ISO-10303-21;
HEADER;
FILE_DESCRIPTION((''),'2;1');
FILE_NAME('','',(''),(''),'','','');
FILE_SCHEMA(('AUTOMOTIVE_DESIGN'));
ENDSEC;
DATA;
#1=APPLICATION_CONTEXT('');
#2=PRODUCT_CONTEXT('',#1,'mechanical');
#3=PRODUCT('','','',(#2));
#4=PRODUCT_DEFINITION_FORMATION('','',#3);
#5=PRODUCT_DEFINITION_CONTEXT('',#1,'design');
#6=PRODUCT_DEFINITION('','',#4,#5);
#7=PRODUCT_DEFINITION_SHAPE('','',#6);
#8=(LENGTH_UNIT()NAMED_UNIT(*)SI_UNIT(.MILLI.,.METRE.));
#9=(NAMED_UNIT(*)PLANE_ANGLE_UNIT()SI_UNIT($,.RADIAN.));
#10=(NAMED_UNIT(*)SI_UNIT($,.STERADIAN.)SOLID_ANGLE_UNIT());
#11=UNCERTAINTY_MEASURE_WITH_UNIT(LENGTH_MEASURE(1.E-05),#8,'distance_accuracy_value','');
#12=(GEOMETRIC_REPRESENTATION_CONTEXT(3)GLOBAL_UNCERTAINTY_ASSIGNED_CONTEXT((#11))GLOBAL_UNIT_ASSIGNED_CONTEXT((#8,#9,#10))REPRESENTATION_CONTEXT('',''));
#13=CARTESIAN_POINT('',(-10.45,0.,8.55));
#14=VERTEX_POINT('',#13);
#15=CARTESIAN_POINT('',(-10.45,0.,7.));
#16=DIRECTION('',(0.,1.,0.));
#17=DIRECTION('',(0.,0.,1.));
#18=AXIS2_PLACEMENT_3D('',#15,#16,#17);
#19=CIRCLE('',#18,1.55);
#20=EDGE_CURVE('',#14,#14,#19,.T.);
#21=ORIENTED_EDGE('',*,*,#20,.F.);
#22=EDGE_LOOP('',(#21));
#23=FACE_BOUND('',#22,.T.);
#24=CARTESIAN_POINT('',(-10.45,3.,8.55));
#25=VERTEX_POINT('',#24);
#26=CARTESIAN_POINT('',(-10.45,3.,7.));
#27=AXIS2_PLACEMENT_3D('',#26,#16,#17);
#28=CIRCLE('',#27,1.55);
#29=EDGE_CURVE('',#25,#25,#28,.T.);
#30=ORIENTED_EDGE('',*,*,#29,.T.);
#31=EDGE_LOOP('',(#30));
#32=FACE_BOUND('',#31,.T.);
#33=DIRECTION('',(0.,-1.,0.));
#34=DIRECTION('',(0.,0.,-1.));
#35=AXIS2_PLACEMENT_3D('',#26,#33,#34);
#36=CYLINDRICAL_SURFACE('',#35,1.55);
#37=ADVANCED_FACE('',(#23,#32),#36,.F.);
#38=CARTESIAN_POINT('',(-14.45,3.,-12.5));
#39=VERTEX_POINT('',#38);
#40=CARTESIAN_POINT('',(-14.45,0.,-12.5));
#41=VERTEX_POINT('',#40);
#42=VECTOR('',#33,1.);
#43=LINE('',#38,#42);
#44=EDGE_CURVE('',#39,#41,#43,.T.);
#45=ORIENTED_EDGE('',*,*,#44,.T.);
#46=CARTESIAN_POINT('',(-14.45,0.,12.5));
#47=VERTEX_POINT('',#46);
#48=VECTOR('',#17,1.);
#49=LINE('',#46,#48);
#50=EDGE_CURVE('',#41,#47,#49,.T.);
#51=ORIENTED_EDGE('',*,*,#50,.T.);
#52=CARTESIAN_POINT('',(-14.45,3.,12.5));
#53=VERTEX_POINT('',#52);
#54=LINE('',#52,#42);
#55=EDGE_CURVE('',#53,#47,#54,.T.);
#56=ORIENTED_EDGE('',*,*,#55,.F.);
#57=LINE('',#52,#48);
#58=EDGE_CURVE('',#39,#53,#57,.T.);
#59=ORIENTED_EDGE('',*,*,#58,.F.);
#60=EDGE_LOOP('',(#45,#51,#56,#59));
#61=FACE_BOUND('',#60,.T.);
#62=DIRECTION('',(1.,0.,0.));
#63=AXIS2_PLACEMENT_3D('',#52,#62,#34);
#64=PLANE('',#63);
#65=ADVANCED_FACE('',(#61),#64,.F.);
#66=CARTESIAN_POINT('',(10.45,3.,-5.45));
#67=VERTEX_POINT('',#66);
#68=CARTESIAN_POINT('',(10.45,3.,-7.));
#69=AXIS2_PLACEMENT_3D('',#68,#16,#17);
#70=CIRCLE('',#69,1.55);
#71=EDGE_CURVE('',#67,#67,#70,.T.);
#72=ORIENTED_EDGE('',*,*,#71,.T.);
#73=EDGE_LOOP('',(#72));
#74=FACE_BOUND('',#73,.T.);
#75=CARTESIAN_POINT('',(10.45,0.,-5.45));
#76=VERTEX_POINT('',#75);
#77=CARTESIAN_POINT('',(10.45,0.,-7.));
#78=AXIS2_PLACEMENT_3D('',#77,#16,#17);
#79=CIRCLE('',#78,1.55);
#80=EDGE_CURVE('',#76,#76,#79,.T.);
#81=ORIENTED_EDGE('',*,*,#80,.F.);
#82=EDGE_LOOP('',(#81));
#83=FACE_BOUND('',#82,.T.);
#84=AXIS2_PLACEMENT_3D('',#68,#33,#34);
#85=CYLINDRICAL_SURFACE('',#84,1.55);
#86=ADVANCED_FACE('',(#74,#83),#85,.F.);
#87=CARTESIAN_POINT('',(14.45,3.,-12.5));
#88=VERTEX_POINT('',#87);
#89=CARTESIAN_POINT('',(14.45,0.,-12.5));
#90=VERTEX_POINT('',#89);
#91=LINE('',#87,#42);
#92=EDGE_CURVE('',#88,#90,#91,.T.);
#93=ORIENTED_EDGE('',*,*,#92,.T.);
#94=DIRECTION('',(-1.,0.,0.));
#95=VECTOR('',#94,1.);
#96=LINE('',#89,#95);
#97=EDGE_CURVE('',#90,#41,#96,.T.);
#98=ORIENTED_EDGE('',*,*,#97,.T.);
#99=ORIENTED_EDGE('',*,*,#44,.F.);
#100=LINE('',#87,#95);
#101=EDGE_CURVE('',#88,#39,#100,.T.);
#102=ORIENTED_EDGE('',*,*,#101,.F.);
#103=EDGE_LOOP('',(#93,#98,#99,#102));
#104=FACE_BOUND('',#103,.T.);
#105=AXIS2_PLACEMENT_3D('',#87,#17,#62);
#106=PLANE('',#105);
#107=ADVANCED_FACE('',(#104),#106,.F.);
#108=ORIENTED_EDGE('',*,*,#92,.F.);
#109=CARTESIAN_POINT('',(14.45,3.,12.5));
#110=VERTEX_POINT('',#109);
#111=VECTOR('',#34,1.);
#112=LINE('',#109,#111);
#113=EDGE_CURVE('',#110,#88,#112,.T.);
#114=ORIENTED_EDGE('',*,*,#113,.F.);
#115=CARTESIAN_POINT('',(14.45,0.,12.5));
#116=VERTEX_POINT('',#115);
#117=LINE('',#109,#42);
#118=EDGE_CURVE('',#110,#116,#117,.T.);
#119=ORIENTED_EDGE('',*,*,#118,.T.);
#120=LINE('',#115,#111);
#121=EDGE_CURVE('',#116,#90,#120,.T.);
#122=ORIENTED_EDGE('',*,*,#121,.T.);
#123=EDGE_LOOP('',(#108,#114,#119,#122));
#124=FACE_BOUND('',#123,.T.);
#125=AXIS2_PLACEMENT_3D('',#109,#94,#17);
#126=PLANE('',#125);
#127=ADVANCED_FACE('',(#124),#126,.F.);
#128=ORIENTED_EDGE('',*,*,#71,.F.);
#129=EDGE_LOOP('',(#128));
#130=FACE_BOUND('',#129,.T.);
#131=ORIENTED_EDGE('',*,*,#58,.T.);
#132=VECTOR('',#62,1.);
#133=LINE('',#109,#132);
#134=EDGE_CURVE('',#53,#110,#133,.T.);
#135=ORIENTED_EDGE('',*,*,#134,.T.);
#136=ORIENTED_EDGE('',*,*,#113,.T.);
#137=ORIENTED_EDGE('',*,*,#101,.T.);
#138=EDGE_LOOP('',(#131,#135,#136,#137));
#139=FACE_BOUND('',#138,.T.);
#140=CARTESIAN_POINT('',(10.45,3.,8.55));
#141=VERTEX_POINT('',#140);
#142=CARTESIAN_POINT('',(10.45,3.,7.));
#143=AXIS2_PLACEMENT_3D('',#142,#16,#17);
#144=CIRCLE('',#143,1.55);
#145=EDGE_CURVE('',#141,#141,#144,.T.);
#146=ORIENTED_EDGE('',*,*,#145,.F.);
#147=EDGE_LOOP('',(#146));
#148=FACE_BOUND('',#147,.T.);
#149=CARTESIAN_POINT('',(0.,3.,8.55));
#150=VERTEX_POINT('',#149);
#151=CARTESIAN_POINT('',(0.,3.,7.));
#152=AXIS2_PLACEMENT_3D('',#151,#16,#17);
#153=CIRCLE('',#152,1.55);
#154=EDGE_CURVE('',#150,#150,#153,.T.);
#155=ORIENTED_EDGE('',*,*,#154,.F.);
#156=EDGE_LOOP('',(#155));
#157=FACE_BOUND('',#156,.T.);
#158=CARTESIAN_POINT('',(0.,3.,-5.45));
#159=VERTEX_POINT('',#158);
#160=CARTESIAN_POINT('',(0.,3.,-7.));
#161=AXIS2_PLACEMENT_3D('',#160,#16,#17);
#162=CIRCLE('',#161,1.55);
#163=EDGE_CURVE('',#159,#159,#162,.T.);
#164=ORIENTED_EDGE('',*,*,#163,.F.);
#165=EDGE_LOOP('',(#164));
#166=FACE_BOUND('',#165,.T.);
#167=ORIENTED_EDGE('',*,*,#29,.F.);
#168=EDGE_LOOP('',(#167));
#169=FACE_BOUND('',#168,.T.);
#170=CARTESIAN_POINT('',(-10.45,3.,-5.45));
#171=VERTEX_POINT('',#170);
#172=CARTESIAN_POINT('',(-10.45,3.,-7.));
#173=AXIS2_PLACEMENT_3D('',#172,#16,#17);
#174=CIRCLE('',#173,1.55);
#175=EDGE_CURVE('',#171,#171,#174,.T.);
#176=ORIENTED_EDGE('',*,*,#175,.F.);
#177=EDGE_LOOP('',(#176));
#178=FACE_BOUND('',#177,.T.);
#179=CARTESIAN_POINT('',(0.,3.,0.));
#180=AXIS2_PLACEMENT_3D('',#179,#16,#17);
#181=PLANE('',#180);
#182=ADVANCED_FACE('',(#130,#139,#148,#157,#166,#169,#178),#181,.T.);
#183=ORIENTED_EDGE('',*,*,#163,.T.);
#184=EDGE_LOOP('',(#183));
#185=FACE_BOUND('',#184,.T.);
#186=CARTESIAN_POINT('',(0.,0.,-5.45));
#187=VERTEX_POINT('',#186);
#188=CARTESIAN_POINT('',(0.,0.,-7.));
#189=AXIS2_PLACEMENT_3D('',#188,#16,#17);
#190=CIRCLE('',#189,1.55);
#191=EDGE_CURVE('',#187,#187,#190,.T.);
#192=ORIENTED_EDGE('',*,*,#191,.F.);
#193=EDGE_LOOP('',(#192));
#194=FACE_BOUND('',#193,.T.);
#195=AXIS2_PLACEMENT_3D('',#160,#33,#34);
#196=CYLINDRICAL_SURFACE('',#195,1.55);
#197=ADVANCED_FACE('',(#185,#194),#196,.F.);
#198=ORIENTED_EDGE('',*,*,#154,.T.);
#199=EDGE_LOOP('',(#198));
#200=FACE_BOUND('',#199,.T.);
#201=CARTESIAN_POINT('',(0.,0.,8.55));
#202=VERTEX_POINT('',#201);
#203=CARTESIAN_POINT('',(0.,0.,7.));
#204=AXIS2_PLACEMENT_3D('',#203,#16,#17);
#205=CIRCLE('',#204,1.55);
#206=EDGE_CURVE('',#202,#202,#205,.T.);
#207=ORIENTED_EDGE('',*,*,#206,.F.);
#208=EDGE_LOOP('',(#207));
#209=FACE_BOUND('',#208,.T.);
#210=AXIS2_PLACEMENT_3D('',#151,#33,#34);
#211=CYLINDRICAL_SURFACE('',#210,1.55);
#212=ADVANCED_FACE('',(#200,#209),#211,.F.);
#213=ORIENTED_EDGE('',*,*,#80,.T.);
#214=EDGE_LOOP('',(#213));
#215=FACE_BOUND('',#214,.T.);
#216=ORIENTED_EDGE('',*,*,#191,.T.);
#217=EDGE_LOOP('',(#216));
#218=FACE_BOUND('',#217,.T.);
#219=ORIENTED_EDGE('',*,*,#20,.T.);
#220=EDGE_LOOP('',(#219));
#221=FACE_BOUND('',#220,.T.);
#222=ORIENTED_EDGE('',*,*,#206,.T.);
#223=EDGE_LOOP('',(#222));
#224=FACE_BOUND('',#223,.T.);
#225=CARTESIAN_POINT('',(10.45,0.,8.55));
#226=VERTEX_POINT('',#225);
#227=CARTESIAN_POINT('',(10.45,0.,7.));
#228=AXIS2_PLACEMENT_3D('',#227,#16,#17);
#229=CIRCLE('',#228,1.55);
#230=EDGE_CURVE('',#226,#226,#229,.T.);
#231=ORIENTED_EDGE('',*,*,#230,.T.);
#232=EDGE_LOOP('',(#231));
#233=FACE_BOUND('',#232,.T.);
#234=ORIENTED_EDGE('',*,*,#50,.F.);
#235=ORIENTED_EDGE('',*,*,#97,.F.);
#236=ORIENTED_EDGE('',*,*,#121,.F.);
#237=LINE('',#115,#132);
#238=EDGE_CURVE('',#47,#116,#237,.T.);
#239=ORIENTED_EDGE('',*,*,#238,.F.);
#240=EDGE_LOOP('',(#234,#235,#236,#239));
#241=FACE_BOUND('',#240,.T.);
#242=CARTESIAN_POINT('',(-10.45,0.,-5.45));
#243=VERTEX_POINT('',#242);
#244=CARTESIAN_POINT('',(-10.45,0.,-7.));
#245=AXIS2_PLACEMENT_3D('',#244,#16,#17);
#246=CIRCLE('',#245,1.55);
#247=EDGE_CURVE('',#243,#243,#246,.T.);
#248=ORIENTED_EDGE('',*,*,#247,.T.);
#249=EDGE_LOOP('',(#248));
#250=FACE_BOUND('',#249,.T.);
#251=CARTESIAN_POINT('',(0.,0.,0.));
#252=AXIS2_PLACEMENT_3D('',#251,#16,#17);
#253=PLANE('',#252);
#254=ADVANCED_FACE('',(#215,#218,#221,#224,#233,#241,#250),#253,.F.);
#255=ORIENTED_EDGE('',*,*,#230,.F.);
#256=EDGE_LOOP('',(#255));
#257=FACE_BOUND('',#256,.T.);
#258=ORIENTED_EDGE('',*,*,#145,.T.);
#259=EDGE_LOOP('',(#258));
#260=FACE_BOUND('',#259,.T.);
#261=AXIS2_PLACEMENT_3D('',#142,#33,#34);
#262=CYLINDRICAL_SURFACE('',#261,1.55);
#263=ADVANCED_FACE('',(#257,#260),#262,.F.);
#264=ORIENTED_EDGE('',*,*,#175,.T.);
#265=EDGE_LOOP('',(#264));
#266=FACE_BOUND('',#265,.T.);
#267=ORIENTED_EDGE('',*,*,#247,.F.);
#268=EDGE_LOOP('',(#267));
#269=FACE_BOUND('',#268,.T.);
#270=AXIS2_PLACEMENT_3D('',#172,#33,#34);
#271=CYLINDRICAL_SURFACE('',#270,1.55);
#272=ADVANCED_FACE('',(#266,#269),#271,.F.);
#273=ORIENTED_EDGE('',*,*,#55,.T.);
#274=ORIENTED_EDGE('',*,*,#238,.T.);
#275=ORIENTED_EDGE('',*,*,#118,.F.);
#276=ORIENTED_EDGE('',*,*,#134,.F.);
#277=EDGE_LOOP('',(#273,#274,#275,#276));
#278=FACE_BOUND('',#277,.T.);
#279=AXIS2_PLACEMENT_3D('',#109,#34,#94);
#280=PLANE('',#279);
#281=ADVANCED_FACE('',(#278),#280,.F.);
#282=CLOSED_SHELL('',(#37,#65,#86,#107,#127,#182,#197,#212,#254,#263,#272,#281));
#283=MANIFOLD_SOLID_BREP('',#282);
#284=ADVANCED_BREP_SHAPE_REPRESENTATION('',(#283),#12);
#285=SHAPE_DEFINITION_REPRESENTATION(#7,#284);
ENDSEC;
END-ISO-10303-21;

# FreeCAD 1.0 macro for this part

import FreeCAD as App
import Part
import Sketcher

V = App.Vector

doc = App.newDocument("Part")
body = doc.addObject("PartDesign::Body", "Body")

# Sketch on XZ plane
sketch1 = body.newObject("Sketcher::SketchObject", "Sketch")
sketch1.AttachmentSupport = (doc.getObject("XZ_Plane"), [""])
sketch1.MapMode = "FlatFace"
sketch1.addGeometry([
    Part.LineSegment(V(-14.4, -12.5, 0), V(-14.4, 12.5, 0)),  # 0
    Part.LineSegment(V(-14.4, 12.5, 0), V(14.4, 12.5, 0)),  # 1
    Part.LineSegment(V(14.4, 12.5, 0), V(14.4, -12.5, 0)),  # 2
    Part.LineSegment(V(14.4, -12.5, 0), V(-14.4, -12.5, 0)),  # 3
    Part.Circle(V(-10.4, 7, 0), V(0, 0, 1), 1.6),  # 4
    Part.Circle(V(0, 7, 0), V(0, 0, 1), 1.6),  # 5
    Part.Circle(V(10.4, 7, 0), V(0, 0, 1), 1.6),  # 6
    Part.Circle(V(-10.4, -7, 0), V(0, 0, 1), 1.6),  # 7
    Part.Circle(V(0, -7, 0), V(0, 0, 1), 1.6),  # 8
    Part.Circle(V(10.4, -7, 0), V(0, 0, 1), 1.6),  # 9
], False)
sketch1.addConstraint([
    Sketcher.Constraint("Coincident", 0, 2, 1, 1),
    Sketcher.Constraint("Coincident", 1, 2, 2, 1),
    Sketcher.Constraint("Coincident", 2, 2, 3, 1),
    Sketcher.Constraint("Coincident", 3, 2, 0, 1),
    Sketcher.Constraint("Vertical", 0),
    Sketcher.Constraint("Horizontal", 1),
    Sketcher.Constraint("Vertical", 2),
    Sketcher.Constraint("Horizontal", 3),
    Sketcher.Constraint("Equal", 4, 5),
    Sketcher.Constraint("Equal", 5, 6),
    Sketcher.Constraint("Equal", 6, 7),
    Sketcher.Constraint("Equal", 7, 8),
    Sketcher.Constraint("Equal", 8, 9),
    Sketcher.Constraint("Symmetric", 6, 3, 7, 3, -1, 1),
    Sketcher.Constraint("Symmetric", 5, 3, 8, 3, -1, 1),
    Sketcher.Constraint("Symmetric", 4, 3, 9, 3, -1, 1),
    Sketcher.Constraint("Symmetric", 0, 2, 2, 2, -1, 1),
    Sketcher.Constraint("Symmetric", 4, 3, 6, 3, -2),
    Sketcher.Constraint("PointOnObject", 5, 3, -2),
    Sketcher.Constraint("Horizontal", 4, 3, 5, 3),
    Sketcher.Constraint("Diameter", 4, 3.1),
    Sketcher.Constraint("DistanceY", 0, 1, 0, 2, 25.0),
    Sketcher.Constraint("DistanceX", 1, 1, 1, 2, 28.9),
    Sketcher.Constraint("DistanceY", -1, 1, 4, 3, 7.0),
    Sketcher.Constraint("DistanceX", 0, 2, 4, 3, 4.0),
])
pad1 = body.newObject("PartDesign::Pad", "Pad")
pad1.Profile = sketch1
pad1.Length = 3
pad1.Reversed = True

doc.recompute()
